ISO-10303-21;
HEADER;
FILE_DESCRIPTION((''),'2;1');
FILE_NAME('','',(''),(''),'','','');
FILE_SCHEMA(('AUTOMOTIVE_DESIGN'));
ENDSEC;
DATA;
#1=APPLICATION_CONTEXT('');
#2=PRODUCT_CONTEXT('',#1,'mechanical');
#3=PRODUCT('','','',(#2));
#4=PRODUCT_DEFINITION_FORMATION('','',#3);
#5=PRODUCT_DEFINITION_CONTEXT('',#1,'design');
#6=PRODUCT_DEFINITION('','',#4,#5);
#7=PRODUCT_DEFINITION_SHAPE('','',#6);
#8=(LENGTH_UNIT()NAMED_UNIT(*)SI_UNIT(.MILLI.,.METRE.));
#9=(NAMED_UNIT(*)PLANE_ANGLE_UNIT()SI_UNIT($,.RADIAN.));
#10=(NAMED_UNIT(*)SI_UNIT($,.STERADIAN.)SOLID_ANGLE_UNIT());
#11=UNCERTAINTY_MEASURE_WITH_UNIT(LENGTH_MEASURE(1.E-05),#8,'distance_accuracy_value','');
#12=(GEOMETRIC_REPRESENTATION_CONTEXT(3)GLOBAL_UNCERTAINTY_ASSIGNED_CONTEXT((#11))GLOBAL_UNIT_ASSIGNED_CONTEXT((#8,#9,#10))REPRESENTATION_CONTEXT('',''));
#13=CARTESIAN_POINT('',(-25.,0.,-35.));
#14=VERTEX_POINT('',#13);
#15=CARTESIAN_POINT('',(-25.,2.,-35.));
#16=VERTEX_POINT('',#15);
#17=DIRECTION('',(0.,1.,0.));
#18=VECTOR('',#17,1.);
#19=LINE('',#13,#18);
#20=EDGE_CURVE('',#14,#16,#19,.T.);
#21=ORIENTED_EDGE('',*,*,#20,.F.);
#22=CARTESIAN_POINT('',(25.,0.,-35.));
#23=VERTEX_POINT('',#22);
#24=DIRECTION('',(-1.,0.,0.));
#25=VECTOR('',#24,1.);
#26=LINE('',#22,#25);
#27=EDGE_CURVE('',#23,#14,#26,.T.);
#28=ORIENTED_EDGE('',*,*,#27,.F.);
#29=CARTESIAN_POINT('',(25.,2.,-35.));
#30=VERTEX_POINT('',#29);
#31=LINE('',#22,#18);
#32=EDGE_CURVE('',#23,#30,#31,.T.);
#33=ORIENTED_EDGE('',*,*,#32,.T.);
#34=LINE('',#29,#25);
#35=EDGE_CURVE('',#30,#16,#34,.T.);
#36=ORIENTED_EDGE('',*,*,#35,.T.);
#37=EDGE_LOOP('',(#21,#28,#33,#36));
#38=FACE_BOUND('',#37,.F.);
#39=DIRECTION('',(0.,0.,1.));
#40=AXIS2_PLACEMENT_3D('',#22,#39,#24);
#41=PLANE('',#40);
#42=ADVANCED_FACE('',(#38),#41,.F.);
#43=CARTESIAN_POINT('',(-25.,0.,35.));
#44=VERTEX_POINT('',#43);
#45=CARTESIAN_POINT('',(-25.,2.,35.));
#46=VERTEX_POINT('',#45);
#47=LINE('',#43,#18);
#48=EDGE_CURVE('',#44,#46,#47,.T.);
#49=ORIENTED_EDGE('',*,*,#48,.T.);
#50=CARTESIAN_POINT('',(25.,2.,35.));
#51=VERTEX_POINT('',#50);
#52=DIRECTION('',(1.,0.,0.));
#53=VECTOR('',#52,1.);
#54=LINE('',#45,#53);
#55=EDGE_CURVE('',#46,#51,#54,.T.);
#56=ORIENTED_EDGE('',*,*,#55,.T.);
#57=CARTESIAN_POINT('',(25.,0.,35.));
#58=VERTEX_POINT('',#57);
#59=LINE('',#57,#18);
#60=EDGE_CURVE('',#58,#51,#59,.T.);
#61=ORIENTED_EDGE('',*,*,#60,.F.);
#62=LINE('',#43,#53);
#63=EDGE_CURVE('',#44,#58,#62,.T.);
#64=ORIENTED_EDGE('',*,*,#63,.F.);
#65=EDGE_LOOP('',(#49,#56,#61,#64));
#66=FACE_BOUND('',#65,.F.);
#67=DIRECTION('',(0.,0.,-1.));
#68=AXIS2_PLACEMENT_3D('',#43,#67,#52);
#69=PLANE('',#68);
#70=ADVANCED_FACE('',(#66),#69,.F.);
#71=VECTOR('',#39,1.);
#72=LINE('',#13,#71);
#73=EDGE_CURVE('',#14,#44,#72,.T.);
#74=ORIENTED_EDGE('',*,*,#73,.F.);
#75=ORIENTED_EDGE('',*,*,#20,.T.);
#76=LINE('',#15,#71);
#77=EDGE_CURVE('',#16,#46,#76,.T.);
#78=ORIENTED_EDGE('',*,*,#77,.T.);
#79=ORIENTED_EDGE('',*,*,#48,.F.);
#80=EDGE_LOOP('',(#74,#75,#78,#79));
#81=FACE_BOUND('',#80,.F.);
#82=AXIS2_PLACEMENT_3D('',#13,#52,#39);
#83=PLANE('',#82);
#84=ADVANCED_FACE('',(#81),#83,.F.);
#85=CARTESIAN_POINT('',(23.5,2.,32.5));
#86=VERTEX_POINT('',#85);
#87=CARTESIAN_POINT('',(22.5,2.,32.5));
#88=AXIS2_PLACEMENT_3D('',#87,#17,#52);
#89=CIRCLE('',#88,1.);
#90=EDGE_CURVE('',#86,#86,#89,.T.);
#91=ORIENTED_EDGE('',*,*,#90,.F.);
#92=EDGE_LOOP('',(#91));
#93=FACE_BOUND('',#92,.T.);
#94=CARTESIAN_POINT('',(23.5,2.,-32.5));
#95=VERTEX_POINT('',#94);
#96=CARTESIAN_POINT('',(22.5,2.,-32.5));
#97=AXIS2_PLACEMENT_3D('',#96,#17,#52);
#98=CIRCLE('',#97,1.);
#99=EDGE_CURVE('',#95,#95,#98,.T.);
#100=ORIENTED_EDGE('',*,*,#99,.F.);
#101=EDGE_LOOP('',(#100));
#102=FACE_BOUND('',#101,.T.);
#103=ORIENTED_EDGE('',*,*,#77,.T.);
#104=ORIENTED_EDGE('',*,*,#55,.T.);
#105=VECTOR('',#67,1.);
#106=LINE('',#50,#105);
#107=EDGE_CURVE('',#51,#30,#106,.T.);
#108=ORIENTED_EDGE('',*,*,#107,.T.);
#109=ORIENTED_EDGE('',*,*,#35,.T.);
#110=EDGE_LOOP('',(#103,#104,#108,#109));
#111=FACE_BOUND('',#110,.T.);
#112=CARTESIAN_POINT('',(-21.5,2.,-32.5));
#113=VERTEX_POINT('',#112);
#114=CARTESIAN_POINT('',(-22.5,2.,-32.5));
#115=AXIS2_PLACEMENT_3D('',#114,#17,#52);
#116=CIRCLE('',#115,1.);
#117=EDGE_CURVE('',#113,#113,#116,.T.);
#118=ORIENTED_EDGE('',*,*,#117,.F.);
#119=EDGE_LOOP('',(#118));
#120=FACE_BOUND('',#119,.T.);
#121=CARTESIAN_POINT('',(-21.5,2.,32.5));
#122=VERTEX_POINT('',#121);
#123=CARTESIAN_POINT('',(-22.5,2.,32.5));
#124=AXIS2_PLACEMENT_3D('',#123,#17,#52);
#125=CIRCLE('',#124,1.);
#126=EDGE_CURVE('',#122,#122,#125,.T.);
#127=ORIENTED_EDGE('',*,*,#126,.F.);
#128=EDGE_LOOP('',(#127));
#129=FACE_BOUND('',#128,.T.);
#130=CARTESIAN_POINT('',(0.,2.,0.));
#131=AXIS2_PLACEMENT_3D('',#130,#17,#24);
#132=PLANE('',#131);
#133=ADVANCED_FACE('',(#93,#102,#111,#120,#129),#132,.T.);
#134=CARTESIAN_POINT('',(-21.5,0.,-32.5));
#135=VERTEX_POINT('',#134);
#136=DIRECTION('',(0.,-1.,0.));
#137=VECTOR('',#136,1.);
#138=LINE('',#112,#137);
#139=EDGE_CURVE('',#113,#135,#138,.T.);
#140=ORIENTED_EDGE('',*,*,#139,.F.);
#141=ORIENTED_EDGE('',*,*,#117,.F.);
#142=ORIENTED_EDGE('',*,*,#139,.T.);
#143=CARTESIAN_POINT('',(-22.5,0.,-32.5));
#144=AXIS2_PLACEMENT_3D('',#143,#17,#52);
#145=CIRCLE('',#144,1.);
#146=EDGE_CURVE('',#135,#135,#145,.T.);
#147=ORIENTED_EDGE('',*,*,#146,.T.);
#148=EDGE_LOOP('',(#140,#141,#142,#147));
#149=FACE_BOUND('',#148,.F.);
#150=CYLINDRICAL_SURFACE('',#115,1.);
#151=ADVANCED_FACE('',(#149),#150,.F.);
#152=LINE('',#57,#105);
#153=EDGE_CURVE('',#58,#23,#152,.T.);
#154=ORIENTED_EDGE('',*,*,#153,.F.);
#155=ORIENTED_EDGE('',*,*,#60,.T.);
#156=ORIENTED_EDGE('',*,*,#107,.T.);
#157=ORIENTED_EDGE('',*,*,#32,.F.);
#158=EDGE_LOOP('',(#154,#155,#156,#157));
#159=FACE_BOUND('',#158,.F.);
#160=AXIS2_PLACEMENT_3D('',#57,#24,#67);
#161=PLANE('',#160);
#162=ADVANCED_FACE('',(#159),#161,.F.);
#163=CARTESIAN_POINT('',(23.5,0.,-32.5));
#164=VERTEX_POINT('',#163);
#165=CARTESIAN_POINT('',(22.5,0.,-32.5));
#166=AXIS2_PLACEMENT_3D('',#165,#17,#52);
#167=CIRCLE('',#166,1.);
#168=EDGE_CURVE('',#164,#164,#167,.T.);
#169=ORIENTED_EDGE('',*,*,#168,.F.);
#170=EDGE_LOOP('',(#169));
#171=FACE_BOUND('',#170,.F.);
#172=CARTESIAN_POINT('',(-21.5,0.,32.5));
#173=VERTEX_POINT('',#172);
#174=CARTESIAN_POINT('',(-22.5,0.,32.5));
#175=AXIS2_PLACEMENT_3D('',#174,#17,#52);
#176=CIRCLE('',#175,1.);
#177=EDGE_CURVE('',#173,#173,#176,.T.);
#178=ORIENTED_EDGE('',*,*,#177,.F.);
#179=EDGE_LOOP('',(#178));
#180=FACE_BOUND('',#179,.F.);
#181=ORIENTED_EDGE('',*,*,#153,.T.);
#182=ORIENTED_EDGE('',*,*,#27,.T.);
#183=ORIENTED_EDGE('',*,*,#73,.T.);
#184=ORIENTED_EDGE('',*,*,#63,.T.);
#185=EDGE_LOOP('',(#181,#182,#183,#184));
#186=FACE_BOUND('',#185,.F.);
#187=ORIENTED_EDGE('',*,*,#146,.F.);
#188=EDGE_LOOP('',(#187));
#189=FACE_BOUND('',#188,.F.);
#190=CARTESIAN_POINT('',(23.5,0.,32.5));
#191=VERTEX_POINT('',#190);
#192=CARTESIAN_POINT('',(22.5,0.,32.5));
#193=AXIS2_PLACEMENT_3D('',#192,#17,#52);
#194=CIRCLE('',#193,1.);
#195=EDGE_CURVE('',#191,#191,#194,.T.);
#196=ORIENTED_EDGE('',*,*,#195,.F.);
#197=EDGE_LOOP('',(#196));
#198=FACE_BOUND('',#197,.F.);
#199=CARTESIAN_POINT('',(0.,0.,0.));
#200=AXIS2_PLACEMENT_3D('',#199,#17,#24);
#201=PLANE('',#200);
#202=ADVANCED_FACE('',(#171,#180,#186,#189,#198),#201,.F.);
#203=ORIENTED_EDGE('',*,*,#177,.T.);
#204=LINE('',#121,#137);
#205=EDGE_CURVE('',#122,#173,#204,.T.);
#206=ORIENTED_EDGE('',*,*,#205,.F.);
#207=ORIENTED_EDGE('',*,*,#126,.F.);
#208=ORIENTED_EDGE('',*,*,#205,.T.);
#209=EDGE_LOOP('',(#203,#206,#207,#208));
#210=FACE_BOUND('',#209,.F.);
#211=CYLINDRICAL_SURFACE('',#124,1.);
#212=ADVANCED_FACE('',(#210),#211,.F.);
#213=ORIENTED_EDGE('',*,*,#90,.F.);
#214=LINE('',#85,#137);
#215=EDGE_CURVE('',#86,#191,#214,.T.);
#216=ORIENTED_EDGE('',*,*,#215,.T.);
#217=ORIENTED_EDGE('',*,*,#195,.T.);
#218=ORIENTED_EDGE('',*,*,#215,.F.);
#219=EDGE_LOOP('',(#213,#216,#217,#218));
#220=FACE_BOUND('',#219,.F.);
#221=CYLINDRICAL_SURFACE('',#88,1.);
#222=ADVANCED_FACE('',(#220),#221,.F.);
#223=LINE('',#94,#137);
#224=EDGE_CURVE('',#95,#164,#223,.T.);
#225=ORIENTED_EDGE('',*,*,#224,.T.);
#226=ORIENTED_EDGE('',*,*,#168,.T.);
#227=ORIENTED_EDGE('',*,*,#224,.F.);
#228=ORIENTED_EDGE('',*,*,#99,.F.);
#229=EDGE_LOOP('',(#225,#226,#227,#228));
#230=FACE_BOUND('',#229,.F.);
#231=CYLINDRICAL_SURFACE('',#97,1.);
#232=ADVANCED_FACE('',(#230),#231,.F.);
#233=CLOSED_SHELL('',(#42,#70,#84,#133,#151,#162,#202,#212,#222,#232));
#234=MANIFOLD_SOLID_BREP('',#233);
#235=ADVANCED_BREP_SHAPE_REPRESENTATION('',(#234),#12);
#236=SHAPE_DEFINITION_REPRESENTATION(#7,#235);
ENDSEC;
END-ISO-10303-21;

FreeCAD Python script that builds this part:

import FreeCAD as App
import Part
import Sketcher

V = App.Vector
Q = App.Units.Quantity


def add_polygon(sketch, points):
    """Adds a closed chain of lines whose ends are joined by coincident constraints."""
    first, n = sketch.GeometryCount, len(points)
    for a, b in zip(points, points[1:] + points[:1]):
        sketch.addGeometry(Part.LineSegment(App.Vector(*a, 0), App.Vector(*b, 0)), False)
    for i in range(n):
        sketch.addConstraint(Sketcher.Constraint("Coincident", first + i, 2, first + (i + 1) % n, 1))

doc = App.newDocument("Part")
body = doc.addObject("PartDesign::Body", "Body")

# Sketch on XZ plane
sketch1 = body.newObject("Sketcher::SketchObject", "Sketch")
sketch1.AttachmentSupport = (doc.getObject("XZ_Plane"), [""])
sketch1.MapMode = "FlatFace"
add_polygon(sketch1, [(-25, -35), (-25, 35), (25, 35), (25, -35)])  # lines 0-3
sketch1.addConstraint([
    Sketcher.Constraint("Vertical", 0),
    Sketcher.Constraint("Horizontal", 1),
    Sketcher.Constraint("Vertical", 2),
    Sketcher.Constraint("Horizontal", 3),
    Sketcher.Constraint("Symmetric", 0, 2, 2, 2, -1, 1),
    Sketcher.Constraint("DistanceX", 1, 1, 1, 2, Q("50 mm")),
    Sketcher.Constraint("DistanceY", 0, 1, 0, 2, Q("70 mm")),
])
pad1 = body.newObject("PartDesign::Pad", "Pad")
pad1.Profile = sketch1
pad1.Length = 2
pad1.Reversed = True

# Sketch on XZ plane
sketch2 = body.newObject("Sketcher::SketchObject", "Sketch001")
sketch2.AttachmentSupport = (doc.getObject("XZ_Plane"), [""])
sketch2.MapMode = "FlatFace"
sketch2.AttachmentOffset = App.Placement(V(0, 0, -2), App.Rotation())
sketch2.addGeometry([
    Part.Circle(V(-22.5, -32.5, 0), V(0, 0, 1), 1),
    Part.Circle(V(-22.5, 32.5, 0), V(0, 0, 1), 1),
    Part.Circle(V(22.5, 32.5, 0), V(0, 0, 1), 1),
    Part.Circle(V(22.5, -32.5, 0), V(0, 0, 1), 1),
], False)
sketch2.addConstraint([
    Sketcher.Constraint("Equal", 0, 1),
    Sketcher.Constraint("Equal", 1, 2),
    Sketcher.Constraint("Equal", 2, 3),
    Sketcher.Constraint("Symmetric", 0, 3, 2, 3, -1, 1),
    Sketcher.Constraint("Symmetric", 1, 3, 3, 3, -1, 1),
    Sketcher.Constraint("Symmetric", 1, 3, 2, 3, -2),
    Sketcher.Constraint("Diameter", 0, Q("2 mm")),
    Sketcher.Constraint("DistanceY", 0, 3, 1, 3, Q("65 mm")),
    Sketcher.Constraint("DistanceX", 1, 3, 2, 3, Q("45 mm")),
])
pocket1 = body.newObject("PartDesign::Pocket", "Pocket")
pocket1.Profile = sketch2
pocket1.Type = "ThroughAll"
pocket1.Reversed = True

doc.recompute()
